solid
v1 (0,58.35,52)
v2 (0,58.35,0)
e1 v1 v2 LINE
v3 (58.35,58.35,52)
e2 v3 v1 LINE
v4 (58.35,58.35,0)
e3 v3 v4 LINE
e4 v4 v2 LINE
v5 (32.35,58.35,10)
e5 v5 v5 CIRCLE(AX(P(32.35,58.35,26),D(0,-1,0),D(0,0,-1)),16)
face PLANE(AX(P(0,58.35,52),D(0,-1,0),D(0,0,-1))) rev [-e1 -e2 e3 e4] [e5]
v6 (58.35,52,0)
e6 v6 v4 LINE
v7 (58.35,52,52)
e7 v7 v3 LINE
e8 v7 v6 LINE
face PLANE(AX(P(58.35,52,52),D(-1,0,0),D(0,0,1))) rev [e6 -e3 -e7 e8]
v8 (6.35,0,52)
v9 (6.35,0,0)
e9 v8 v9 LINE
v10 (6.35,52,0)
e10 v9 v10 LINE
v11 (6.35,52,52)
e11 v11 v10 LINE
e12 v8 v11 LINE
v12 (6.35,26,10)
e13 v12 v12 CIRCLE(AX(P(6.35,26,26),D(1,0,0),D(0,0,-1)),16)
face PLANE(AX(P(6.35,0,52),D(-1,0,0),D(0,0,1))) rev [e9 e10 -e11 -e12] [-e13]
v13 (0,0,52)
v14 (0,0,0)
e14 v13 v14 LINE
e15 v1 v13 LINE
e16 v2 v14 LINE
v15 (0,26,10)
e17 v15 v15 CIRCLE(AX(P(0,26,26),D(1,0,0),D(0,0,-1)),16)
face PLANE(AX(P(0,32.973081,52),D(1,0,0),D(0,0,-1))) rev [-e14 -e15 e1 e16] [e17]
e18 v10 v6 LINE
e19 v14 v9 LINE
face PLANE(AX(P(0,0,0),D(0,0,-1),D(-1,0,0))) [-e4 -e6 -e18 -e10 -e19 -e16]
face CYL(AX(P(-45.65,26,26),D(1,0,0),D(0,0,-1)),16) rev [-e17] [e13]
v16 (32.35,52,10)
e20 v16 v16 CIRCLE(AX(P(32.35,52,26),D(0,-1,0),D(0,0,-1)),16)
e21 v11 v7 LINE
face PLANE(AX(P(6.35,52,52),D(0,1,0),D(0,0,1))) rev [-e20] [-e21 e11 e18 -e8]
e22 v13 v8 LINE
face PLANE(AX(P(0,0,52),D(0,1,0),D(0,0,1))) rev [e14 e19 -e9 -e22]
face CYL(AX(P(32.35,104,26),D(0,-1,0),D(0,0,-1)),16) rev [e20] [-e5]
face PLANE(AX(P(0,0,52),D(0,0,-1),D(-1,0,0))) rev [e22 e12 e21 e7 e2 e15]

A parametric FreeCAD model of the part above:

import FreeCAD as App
import Part
import Sketcher


def add_polygon(sketch, points):
    """Adds a closed chain of lines whose ends are joined by coincident constraints."""
    first, n = sketch.GeometryCount, len(points)
    for a, b in zip(points, points[1:] + points[:1]):
        sketch.addGeometry(Part.LineSegment(App.Vector(*a, 0), App.Vector(*b, 0)), False)
    for i in range(n):
        sketch.addConstraint(Sketcher.Constraint("Coincident", first + i, 2, first + (i + 1) % n, 1))

doc = App.newDocument("Part")
body = doc.addObject("PartDesign::Body", "Body")

sketch1 = body.newObject("Sketcher::SketchObject", "Sketch")
sketch1.AttachmentSupport = (doc.getObject("XY_Plane"), [""])
sketch1.MapMode = "FlatFace"
add_polygon(sketch1, [(0, 0), (6, 0), (6, 52), (58, 52), (58, 58), (0, 58)])
sketch1.addConstraint(Sketcher.Constraint("Horizontal", 0))
sketch1.addConstraint(Sketcher.Constraint("Vertical", 1))
sketch1.addConstraint(Sketcher.Constraint("Horizontal", 2))
sketch1.addConstraint(Sketcher.Constraint("Vertical", 3))
sketch1.addConstraint(Sketcher.Constraint("Horizontal", 4))
sketch1.addConstraint(Sketcher.Constraint("Vertical", 5))
sketch1.addConstraint(Sketcher.Constraint("Coincident", 5, 2, -1, 1))
sketch1.addConstraint(Sketcher.Constraint("Equal", 2, 1))
sketch1.addConstraint(Sketcher.Constraint("Equal", 0, 3))
sketch1.addConstraint(Sketcher.Constraint("DistanceX", 2, 1, 2, 2, 52.0))
sketch1.addConstraint(Sketcher.Constraint("DistanceX", 0, 1, 0, 2, 6.35))
pad1 = body.newObject("PartDesign::Pad", "Pad")
pad1.Profile = sketch1
pad1.Length = 52

sketch2 = body.newObject("Sketcher::SketchObject", "Sketch001")
sketch2.AttachmentSupport = (doc.getObject("XZ_Plane"), [""])
sketch2.MapMode = "FlatFace"
sketch2.AttachmentOffset = App.Placement(App.Vector(0, 0, -52), App.Rotation())
sketch2.addGeometry(Part.Circle(App.Vector(32, 26, 0), App.Vector(0, 0, 1), 16), False)
sketch2.addConstraint(Sketcher.Constraint("Diameter", 0, 32.0))
sketch2.addConstraint(Sketcher.Constraint("DistanceY", -1, 1, 0, 3, 26.0))
sketch2.addConstraint(Sketcher.Constraint("DistanceX", -1, 1, 0, 3, 32.35))
pocket1 = body.newObject("PartDesign::Pocket", "Pocket")
pocket1.Profile = sketch2
pocket1.Length = 52

sketch3 = body.newObject("Sketcher::SketchObject", "Sketch002")
sketch3.AttachmentSupport = (doc.getObject("YZ_Plane"), [""])
sketch3.MapMode = "FlatFace"
sketch3.AttachmentOffset = App.Placement(App.Vector(0, 0, 6.35), App.Rotation())
sketch3.addGeometry(Part.Circle(App.Vector(26, 26, 0), App.Vector(0, 0, 1), 16), False)
sketch3.addConstraint(Sketcher.Constraint("Diameter", 0, 32.0))
sketch3.addConstraint(Sketcher.Constraint("DistanceX", -1, 1, 0, 3, 26.0))
sketch3.addConstraint(Sketcher.Constraint("DistanceY", -1, 1, 0, 3, 26.0))
pocket2 = body.newObject("PartDesign::Pocket", "Pocket001")
pocket2.Profile = sketch3
pocket2.Length = 52

doc.recompute()
